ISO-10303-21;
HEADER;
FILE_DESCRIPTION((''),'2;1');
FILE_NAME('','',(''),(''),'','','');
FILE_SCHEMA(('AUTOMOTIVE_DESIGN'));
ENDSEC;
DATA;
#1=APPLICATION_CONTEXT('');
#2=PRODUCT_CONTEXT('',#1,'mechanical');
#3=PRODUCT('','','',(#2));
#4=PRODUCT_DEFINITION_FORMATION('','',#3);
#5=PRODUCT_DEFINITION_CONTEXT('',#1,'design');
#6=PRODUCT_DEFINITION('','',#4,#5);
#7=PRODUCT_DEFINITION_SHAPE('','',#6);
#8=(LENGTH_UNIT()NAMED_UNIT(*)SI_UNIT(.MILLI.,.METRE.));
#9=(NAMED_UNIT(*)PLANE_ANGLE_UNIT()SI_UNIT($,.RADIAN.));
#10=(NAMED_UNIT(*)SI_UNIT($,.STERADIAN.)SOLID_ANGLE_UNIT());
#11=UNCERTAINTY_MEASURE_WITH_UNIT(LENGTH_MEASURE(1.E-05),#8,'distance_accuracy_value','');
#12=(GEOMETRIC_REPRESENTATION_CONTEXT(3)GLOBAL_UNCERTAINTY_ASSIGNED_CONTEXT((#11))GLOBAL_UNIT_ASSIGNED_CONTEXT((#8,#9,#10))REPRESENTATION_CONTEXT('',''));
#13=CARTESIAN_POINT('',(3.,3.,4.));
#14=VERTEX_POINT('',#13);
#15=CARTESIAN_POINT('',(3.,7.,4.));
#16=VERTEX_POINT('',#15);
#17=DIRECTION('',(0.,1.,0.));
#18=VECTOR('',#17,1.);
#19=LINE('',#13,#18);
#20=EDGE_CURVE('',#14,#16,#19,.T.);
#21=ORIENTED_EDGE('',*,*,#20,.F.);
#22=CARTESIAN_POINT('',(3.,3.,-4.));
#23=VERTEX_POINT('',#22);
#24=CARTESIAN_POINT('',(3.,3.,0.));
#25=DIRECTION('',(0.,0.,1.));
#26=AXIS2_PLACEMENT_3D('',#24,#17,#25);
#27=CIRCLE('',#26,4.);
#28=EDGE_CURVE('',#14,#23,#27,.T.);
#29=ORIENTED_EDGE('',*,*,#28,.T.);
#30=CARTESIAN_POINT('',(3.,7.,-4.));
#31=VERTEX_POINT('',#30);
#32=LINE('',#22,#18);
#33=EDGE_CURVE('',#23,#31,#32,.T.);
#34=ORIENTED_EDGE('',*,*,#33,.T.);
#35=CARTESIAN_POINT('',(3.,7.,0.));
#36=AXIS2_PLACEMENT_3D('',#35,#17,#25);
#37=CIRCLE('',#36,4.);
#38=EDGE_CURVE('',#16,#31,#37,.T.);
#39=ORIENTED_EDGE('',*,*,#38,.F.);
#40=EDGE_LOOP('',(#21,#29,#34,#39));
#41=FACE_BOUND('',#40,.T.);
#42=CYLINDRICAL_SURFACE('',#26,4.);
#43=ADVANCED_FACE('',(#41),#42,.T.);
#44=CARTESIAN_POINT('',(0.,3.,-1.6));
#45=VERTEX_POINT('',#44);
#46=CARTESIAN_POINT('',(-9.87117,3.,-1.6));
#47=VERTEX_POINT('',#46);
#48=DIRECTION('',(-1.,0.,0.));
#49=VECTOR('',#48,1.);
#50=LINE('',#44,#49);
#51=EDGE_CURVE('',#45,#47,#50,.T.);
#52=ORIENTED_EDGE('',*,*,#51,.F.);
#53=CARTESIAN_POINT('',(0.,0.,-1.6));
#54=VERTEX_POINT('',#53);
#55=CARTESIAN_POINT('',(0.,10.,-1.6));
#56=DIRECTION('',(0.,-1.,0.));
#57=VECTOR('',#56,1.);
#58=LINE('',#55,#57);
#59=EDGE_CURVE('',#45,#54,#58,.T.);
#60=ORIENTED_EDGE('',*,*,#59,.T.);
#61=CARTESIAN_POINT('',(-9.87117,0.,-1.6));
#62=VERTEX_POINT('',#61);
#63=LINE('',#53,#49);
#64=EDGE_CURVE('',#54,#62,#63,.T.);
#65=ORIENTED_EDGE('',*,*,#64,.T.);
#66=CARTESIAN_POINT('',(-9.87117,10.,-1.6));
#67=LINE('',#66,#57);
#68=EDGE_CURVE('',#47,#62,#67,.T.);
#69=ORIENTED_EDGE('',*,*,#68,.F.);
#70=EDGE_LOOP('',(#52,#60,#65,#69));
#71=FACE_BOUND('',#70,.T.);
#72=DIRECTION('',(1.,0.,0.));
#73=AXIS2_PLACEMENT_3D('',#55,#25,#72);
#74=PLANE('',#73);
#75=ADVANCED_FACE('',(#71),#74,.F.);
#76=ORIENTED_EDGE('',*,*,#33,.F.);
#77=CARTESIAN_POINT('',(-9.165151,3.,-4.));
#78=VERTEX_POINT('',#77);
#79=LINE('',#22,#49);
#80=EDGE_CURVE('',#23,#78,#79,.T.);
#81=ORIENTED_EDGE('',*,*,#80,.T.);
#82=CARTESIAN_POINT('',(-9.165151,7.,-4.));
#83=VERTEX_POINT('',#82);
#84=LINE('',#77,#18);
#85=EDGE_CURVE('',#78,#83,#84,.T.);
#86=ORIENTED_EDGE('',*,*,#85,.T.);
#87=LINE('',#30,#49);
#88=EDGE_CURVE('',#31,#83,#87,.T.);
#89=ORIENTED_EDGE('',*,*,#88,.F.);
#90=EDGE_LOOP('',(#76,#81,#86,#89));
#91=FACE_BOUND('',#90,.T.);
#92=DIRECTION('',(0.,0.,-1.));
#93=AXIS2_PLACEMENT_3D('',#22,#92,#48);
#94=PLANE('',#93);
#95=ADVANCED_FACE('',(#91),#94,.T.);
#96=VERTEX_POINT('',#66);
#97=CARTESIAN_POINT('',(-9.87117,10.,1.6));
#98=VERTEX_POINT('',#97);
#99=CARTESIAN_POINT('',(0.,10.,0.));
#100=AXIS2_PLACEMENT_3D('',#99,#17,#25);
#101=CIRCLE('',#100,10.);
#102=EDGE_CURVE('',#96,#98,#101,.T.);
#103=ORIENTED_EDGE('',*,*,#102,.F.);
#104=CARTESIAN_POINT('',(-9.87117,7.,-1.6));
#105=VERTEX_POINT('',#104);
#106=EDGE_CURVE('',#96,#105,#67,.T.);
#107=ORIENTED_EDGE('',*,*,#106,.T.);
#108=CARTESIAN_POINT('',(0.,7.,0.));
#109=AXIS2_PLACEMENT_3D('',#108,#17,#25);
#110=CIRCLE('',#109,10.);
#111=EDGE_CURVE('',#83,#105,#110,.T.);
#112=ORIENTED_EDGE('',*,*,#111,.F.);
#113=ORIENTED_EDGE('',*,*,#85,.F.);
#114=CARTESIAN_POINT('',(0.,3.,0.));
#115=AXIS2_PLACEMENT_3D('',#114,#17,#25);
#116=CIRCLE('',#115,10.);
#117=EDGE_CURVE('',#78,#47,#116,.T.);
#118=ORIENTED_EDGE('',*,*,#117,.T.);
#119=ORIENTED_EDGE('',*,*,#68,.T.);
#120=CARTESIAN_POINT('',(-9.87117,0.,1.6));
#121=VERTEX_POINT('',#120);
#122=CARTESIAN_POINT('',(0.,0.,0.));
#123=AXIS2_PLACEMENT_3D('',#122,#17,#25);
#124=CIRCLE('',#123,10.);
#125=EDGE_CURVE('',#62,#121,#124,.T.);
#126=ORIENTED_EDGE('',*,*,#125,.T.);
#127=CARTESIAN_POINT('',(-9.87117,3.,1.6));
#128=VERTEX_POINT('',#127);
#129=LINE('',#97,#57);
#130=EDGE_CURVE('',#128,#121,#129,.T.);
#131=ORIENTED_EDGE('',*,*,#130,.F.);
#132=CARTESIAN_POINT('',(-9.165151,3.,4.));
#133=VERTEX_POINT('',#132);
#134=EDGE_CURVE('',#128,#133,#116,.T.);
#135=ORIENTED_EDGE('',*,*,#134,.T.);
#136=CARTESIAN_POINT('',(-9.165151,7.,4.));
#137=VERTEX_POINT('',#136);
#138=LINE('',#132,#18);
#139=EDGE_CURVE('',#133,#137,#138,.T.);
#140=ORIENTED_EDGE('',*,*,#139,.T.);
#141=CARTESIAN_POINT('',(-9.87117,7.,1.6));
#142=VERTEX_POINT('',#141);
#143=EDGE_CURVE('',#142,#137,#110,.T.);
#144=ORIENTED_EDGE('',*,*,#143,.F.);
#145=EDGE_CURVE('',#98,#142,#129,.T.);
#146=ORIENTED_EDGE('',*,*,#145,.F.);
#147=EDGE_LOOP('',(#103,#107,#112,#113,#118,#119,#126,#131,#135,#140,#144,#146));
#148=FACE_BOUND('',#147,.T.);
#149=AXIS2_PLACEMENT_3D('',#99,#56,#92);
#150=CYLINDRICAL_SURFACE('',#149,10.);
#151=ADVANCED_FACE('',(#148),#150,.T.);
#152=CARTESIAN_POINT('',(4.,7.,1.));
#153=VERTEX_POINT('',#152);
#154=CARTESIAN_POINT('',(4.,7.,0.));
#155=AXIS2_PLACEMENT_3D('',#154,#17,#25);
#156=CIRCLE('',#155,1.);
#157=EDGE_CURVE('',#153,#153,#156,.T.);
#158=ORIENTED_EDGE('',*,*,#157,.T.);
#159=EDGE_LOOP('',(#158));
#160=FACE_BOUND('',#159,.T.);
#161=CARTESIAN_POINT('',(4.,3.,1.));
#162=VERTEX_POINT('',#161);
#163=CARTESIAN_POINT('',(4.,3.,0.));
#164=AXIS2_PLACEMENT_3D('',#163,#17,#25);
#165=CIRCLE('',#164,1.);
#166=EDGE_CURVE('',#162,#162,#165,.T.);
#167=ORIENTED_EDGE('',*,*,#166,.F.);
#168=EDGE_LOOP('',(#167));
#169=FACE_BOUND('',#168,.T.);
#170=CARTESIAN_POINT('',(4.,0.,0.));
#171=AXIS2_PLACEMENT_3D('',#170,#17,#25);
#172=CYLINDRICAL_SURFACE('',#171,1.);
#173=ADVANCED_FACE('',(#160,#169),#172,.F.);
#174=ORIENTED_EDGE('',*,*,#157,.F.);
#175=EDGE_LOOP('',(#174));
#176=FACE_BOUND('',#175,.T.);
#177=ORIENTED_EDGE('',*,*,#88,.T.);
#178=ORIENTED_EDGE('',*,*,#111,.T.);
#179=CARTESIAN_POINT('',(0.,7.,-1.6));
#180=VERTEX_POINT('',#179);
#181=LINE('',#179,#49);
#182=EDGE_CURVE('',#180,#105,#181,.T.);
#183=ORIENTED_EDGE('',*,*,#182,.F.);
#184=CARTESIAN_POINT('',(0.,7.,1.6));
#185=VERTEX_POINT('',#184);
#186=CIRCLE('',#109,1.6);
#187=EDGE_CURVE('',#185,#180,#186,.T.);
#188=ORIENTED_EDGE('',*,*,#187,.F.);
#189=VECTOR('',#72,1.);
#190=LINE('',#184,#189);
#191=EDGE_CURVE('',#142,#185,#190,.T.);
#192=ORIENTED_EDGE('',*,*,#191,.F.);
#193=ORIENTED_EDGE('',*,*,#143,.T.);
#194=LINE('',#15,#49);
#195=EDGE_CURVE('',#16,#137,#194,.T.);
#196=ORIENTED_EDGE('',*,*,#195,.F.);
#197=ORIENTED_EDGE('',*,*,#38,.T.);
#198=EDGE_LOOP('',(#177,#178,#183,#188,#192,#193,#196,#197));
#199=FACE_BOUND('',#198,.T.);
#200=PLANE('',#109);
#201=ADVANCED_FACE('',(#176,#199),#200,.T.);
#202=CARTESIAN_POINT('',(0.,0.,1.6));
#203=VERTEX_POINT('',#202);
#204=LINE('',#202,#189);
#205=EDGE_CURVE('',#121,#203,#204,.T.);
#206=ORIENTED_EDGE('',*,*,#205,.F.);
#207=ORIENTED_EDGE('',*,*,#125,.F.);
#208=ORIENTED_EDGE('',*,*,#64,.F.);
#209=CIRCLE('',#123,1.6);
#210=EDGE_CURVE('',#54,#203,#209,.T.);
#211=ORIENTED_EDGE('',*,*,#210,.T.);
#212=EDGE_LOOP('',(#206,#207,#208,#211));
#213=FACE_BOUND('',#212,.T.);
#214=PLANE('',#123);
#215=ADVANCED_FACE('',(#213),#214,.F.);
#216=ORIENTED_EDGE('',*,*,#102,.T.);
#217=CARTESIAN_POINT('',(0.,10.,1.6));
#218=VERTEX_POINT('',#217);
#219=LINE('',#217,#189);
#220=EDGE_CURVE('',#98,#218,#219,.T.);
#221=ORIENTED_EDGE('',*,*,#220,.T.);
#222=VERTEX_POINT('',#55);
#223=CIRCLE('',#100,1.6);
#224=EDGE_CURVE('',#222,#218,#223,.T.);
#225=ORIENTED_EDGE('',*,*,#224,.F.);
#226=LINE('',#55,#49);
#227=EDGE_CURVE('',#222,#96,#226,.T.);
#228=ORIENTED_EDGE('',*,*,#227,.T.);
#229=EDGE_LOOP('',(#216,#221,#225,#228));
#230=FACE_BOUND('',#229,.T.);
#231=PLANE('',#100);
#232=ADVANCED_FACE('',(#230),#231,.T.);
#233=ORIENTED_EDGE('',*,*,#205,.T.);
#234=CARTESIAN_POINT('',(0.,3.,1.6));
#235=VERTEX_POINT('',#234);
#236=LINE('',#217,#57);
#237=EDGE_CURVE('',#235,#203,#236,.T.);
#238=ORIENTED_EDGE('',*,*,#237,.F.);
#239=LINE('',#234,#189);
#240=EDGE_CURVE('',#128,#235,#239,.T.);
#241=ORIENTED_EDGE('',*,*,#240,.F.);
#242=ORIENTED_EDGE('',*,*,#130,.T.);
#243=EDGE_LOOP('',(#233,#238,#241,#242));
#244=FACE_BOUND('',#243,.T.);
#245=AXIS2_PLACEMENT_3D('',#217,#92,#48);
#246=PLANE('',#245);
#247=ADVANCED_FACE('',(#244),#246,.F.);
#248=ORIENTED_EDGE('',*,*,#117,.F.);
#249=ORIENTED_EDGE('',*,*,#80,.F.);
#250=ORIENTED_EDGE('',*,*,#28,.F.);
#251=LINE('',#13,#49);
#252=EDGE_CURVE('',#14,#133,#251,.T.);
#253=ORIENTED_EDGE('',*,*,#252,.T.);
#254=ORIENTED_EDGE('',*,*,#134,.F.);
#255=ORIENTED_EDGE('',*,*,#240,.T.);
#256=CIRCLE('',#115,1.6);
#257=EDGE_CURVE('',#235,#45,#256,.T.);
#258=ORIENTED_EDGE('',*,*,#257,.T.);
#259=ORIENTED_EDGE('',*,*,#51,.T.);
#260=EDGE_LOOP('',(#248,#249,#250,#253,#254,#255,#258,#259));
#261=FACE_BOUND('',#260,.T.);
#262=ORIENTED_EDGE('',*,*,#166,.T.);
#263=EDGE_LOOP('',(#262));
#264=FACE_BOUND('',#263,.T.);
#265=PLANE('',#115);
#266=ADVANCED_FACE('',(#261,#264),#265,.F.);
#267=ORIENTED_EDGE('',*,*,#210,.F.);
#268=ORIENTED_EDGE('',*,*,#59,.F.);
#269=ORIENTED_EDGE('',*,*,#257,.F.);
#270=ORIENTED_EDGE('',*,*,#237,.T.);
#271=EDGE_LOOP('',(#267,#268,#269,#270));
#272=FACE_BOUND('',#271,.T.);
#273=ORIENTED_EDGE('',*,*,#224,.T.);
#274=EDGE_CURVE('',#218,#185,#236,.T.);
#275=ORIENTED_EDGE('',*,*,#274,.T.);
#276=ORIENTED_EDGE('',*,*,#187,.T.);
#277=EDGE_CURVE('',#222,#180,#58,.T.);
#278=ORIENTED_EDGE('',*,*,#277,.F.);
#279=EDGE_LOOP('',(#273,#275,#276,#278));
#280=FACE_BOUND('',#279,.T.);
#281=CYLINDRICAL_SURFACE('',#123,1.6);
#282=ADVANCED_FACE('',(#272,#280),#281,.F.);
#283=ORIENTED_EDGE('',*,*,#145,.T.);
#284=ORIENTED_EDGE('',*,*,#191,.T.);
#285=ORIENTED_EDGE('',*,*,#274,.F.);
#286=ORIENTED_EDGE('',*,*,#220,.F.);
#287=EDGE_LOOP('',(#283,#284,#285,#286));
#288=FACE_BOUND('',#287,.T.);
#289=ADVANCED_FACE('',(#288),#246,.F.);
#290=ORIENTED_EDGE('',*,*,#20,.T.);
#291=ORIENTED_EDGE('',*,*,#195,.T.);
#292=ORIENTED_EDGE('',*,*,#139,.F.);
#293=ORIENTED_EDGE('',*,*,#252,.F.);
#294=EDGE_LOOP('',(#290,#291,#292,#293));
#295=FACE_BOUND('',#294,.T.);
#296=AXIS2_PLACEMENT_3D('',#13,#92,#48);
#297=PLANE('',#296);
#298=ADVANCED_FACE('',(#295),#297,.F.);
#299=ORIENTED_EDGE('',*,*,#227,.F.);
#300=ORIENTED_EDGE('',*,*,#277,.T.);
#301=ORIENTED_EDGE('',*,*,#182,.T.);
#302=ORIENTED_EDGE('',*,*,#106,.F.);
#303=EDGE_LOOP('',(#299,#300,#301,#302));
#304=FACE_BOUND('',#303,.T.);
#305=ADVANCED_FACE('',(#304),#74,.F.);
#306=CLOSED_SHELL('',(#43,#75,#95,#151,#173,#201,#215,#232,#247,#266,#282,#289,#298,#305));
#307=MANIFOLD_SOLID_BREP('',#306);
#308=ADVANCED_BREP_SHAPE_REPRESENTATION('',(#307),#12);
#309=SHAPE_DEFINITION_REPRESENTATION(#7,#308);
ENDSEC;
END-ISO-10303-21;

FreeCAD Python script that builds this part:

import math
import FreeCAD as App
import Part
import Sketcher
Q = App.Units.Quantity

doc = App.newDocument("Part")
body = doc.addObject("PartDesign::Body", "Body")

sketch1 = body.newObject("Sketcher::SketchObject", "Sketch")
sketch1.AttachmentSupport = (doc.getObject("XZ_Plane"), [""])
sketch1.MapMode = "FlatFace"
sketch1.addGeometry([
    Part.LineSegment(App.Vector(-9.9, 1.6, 0), App.Vector(0, 1.6, 0)),
    Part.ArcOfCircle(Part.Circle(App.Vector(0, 0, 0), App.Vector(0, 0, 1), 1.6), math.radians(-90), math.radians(90)),
    Part.LineSegment(App.Vector(0, -1.6, 0), App.Vector(-9.9, -1.6, 0)),
    Part.ArcOfCircle(Part.Circle(App.Vector(0, 0, 0), App.Vector(0, 0, 1), 10), math.radians(170.79), math.radians(189.21)),
], False)
sketch1.addConstraint([
    Sketcher.Constraint("Tangent", 0, 2, 1, 2),
    Sketcher.Constraint("Tangent", 1, 1, 2, 1),
    Sketcher.Constraint("Coincident", 2, 2, 3, 2),
    Sketcher.Constraint("Coincident", 3, 1, 0, 1),
    Sketcher.Constraint("Horizontal", 0),
    Sketcher.Constraint("Horizontal", 2),
    Sketcher.Constraint("Coincident", 1, 3, -1, 1),
    Sketcher.Constraint("Coincident", 3, 3, -1, 1),
    Sketcher.Constraint("Radius", 3, Q("10 mm")),
    Sketcher.Constraint("Radius", 1, Q("1.6 mm")),
])
pad1 = body.newObject("PartDesign::Pad", "Pad")
pad1.Profile = sketch1
pad1.Length = 10
pad1.Reversed = True

sketch2 = body.newObject("Sketcher::SketchObject", "Sketch001")
sketch2.AttachmentSupport = (doc.getObject("XZ_Plane"), [""])
sketch2.MapMode = "FlatFace"
sketch2.AttachmentOffset = App.Placement(App.Vector(0, 0, -5), App.Rotation())
sketch2.addGeometry([
    Part.LineSegment(App.Vector(-9.2, 4, 0), App.Vector(3, 4, 0)),
    Part.ArcOfCircle(Part.Circle(App.Vector(3, 0, 0), App.Vector(0, 0, 1), 4), math.radians(-90), math.radians(90)),
    Part.LineSegment(App.Vector(3, -4, 0), App.Vector(-9.2, -4, 0)),
    Part.ArcOfCircle(Part.Circle(App.Vector(0, 0, 0), App.Vector(0, 0, 1), 10), math.radians(156), math.radians(204)),
], False)
sketch2.addConstraint([
    Sketcher.Constraint("Tangent", 0, 2, 1, 2),
    Sketcher.Constraint("Tangent", 1, 1, 2, 1),
    Sketcher.Constraint("Coincident", 2, 2, 3, 2),
    Sketcher.Constraint("Coincident", 3, 1, 0, 1),
    Sketcher.Constraint("Horizontal", 0),
    Sketcher.Constraint("Horizontal", 2),
    Sketcher.Constraint("Coincident", 3, 3, -1, 1),
    Sketcher.Constraint("PointOnObject", 1, 3, -1),
    Sketcher.Constraint("Radius", 1, Q("4 mm")),
    Sketcher.Constraint("Radius", 3, Q("10 mm")),
    Sketcher.Constraint("DistanceX", -1, 1, 1, 3, Q("3 mm")),
])
pad2 = body.newObject("PartDesign::Pad", "Pad001")
pad2.Profile = sketch2
pad2.Type = "TwoLengths"
pad2.Length = 2
pad2.Length2 = 2
pad2.Reversed = True

sketch3 = body.newObject("Sketcher::SketchObject", "Sketch002")
sketch3.AttachmentSupport = (doc.getObject("XZ_Plane"), [""])
sketch3.MapMode = "FlatFace"
sketch3.AttachmentOffset = App.Placement(App.Vector(0, 0, -10), App.Rotation())
sketch3.addGeometry(Part.Circle(App.Vector(0, 0, 0), App.Vector(0, 0, 1), 1.6), False)
sketch3.addConstraint([
    Sketcher.Constraint("Coincident", 0, 3, -1, 1),
    Sketcher.Constraint("Diameter", 0, Q("3.2 mm")),
])
pocket1 = body.newObject("PartDesign::Pocket", "Pocket")
pocket1.Profile = sketch3
pocket1.Type = "ThroughAll"
pocket1.Reversed = True

sketch4 = body.newObject("Sketcher::SketchObject", "Sketch003")
sketch4.AttachmentSupport = (doc.getObject("XZ_Plane"), [""])
sketch4.MapMode = "FlatFace"
sketch4.AttachmentOffset = App.Placement(App.Vector(0, 0, -7), App.Rotation())
sketch4.addGeometry(Part.Circle(App.Vector(4, 0, 0), App.Vector(0, 0, 1), 1), False)
sketch4.addConstraint([
    Sketcher.Constraint("PointOnObject", 0, 3, -1),
    Sketcher.Constraint("Diameter", 0, Q("2 mm")),
    Sketcher.Constraint("DistanceX", -1, 1, 0, 3, Q("4 mm")),
])
pocket2 = body.newObject("PartDesign::Pocket", "Pocket001")
pocket2.Profile = sketch4
pocket2.Type = "ThroughAll"
pocket2.Reversed = True

doc.recompute()
